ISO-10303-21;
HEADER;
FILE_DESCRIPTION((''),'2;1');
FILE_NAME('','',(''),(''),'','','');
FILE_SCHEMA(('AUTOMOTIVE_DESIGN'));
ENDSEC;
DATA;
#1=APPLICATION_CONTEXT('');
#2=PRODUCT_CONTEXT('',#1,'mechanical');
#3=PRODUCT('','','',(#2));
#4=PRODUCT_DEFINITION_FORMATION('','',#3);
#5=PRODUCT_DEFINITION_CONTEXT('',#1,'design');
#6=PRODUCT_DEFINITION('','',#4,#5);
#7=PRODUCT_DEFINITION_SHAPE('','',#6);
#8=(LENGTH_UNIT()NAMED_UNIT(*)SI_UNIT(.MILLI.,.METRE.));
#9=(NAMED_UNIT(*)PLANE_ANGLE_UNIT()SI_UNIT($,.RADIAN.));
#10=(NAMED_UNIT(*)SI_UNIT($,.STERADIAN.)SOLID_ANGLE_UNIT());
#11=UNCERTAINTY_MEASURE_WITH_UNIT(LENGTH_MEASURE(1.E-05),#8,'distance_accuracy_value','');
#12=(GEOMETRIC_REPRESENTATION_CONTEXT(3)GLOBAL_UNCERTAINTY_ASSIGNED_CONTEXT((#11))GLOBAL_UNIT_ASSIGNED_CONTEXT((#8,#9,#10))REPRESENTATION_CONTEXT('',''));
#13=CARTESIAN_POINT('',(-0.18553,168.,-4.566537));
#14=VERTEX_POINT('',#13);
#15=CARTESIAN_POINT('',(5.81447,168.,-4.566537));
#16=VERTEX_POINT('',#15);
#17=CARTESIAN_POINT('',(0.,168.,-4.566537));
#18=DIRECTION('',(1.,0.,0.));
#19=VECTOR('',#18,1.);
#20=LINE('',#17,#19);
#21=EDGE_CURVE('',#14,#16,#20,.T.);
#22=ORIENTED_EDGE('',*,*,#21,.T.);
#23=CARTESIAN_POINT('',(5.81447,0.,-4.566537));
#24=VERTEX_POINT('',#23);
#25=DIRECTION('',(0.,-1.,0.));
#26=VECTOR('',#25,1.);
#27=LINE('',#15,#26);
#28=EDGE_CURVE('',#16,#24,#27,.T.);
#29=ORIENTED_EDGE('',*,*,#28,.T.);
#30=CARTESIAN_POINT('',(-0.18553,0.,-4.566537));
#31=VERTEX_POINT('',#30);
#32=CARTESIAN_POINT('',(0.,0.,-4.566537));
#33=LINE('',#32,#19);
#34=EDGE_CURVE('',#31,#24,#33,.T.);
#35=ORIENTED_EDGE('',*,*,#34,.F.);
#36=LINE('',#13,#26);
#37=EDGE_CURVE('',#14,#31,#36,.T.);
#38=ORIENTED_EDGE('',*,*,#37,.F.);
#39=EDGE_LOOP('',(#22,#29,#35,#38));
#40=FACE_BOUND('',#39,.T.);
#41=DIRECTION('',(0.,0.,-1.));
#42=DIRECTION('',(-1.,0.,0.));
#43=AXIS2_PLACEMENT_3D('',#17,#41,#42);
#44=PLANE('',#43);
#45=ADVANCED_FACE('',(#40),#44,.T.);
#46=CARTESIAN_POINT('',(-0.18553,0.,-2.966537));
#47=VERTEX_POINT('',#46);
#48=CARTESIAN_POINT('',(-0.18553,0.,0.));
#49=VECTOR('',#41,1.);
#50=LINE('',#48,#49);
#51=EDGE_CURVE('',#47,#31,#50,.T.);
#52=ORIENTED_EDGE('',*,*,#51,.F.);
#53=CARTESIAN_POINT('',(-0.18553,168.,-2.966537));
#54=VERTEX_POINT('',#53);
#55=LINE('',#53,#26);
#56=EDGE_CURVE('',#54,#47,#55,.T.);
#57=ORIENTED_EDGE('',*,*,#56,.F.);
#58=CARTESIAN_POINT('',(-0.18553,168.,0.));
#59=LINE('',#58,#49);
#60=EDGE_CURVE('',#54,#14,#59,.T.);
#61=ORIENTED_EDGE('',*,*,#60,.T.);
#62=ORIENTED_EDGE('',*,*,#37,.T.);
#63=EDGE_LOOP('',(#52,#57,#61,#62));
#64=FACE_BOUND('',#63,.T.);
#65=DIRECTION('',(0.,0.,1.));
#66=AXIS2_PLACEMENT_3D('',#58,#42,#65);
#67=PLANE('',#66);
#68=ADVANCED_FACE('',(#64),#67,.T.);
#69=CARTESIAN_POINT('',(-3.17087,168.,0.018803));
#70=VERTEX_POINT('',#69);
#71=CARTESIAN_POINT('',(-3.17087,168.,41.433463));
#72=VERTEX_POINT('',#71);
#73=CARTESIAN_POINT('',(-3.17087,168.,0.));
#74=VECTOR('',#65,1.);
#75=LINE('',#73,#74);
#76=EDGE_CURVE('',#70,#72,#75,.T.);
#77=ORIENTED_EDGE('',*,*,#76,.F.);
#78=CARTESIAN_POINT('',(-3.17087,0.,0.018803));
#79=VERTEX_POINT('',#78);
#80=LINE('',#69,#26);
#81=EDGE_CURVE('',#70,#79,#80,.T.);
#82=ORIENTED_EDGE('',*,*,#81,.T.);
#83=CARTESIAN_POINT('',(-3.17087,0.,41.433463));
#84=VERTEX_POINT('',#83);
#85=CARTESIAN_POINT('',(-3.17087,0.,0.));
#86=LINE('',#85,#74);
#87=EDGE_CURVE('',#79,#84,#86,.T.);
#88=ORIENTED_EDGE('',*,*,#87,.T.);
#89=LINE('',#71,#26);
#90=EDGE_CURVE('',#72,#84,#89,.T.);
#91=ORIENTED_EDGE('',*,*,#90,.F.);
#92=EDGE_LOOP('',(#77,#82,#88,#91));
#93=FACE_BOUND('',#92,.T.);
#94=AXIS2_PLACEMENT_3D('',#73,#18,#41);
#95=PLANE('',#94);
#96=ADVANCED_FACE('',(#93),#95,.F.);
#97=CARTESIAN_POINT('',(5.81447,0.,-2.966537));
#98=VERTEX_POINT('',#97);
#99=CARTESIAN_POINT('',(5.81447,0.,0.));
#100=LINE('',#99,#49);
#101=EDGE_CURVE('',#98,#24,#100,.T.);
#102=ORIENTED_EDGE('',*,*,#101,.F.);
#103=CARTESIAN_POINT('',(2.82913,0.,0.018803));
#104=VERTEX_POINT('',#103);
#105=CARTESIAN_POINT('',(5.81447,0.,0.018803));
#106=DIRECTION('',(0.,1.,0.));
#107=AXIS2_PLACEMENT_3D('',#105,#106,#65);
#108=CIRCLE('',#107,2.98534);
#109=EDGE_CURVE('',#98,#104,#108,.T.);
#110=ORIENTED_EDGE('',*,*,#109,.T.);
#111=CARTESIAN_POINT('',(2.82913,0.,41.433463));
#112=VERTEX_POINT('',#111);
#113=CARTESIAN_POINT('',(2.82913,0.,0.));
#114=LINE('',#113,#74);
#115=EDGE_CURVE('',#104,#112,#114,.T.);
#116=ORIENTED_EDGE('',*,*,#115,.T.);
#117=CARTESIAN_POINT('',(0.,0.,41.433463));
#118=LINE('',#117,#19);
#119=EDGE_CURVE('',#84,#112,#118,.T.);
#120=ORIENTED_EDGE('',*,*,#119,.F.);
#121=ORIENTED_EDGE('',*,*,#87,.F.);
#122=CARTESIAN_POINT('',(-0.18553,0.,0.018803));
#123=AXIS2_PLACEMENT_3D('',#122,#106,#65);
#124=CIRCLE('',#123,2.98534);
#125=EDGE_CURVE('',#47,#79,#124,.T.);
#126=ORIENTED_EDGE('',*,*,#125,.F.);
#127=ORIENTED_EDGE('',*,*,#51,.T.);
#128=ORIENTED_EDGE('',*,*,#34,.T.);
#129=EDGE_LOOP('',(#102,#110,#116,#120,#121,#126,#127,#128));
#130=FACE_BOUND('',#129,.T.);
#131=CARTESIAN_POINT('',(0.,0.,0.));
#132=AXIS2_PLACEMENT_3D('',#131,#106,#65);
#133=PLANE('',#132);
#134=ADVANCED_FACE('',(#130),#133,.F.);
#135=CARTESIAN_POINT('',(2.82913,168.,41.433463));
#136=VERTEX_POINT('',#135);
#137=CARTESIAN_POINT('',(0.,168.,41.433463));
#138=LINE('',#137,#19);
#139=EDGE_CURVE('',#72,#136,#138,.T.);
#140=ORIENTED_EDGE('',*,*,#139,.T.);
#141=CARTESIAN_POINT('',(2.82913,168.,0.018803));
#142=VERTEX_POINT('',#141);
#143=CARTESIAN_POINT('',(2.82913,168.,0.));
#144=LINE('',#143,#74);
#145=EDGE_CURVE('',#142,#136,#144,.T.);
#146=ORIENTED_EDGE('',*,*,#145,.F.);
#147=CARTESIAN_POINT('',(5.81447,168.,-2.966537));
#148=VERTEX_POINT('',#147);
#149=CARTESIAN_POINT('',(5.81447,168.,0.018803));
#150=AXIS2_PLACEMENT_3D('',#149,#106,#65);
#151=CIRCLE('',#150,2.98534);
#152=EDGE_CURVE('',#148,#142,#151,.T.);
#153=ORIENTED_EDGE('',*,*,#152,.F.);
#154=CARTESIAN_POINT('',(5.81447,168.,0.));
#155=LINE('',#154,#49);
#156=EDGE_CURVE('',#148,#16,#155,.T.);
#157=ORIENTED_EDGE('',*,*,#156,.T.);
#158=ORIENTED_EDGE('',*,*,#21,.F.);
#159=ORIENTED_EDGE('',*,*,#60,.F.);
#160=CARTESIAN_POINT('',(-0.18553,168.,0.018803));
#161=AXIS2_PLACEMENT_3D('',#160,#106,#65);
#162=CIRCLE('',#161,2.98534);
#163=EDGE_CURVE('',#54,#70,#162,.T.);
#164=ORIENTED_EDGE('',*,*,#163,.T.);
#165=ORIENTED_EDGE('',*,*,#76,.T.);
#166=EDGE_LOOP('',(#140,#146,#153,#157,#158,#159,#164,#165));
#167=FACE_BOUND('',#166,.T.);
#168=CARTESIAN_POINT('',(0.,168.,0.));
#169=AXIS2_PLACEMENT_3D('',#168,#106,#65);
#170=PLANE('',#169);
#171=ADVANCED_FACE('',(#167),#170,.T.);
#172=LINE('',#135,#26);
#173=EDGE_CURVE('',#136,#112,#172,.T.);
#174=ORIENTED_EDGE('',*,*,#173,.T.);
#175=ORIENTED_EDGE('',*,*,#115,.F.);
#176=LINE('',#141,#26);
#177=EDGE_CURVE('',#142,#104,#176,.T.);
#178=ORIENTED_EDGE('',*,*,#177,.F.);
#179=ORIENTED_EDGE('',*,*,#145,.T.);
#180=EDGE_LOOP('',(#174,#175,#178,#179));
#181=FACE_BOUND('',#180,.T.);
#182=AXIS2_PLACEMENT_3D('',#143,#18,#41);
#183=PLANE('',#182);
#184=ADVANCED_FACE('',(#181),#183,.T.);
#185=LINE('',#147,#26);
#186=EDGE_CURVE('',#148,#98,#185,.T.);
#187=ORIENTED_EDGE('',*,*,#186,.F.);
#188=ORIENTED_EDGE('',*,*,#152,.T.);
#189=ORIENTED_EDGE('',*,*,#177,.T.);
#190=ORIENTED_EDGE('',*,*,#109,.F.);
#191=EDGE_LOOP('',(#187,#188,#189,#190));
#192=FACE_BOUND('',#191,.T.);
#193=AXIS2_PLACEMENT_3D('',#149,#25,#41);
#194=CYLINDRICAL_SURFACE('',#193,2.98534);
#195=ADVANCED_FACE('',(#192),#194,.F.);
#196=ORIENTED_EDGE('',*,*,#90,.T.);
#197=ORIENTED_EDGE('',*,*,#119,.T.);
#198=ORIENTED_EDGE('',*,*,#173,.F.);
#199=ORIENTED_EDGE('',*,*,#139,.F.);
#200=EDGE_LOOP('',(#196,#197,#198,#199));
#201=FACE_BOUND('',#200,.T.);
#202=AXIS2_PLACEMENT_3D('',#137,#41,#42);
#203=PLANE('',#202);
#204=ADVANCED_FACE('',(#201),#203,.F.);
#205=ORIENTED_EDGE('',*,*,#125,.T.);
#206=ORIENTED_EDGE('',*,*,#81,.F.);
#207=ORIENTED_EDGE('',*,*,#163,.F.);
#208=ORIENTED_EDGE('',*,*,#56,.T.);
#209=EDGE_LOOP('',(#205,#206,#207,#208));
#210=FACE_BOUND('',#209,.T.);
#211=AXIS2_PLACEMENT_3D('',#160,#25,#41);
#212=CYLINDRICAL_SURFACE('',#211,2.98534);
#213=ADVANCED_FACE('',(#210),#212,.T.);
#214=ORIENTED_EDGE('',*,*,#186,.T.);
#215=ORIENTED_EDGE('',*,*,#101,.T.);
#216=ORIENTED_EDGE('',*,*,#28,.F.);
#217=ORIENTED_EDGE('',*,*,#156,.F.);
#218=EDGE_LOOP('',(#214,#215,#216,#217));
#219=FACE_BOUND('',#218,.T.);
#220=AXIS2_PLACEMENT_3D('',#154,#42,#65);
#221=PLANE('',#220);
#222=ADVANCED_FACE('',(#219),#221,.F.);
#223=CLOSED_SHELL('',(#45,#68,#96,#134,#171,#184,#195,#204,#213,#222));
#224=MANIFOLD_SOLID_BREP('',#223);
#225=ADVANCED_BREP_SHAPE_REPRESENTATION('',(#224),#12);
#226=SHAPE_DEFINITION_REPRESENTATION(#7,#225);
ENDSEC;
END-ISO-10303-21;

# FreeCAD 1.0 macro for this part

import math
import FreeCAD as App
import Part
import Sketcher
from FreeCAD import Vector
Q = App.Units.Quantity

doc = App.newDocument("Part")
body = doc.addObject("PartDesign::Body", "Body")

sketch1 = body.newObject("Sketcher::SketchObject", "Sketch")
sketch1.AttachmentSupport = (doc.getObject("XZ_Plane"), [""])
sketch1.MapMode = "FlatFace"
sketch1.addGeometry([
    Part.LineSegment(Vector(5.81447, -4.566537, 0), Vector(-0.18553, -4.566537, 0)),
    Part.LineSegment(Vector(-0.18553, -4.566537, 0), Vector(-0.18553, -2.966537, 0)),
    Part.ArcOfCircle(Part.Circle(Vector(-0.18553, 0.018803, 0), Vector(0, 0, 1), 2.98534), math.radians(180), math.radians(270)),
    Part.LineSegment(Vector(-3.17087, 0.018803, 0), Vector(-3.17087, 41.433463, 0)),
    Part.LineSegment(Vector(-3.17087, 41.433463, 0), Vector(2.82913, 41.433463, 0)),
    Part.LineSegment(Vector(2.82913, 41.433463, 0), Vector(2.82913, 0.018803, 0)),
    Part.ArcOfCircle(Part.Circle(Vector(5.81447, 0.018803, 0), Vector(0, 0, 1), 2.98534), math.radians(180), math.radians(270)),
    Part.LineSegment(Vector(5.81447, -2.966537, 0), Vector(5.81447, -4.566537, 0)),
], False)
sketch1.addConstraint([
    Sketcher.Constraint("Coincident", 0, 2, 1, 1),
    Sketcher.Constraint("Coincident", 1, 2, 2, 2),
    Sketcher.Constraint("Tangent", 2, 1, 3, 1),
    Sketcher.Constraint("Coincident", 3, 2, 4, 1),
    Sketcher.Constraint("Coincident", 4, 2, 5, 1),
    Sketcher.Constraint("Tangent", 5, 2, 6, 1),
    Sketcher.Constraint("Coincident", 6, 2, 7, 1),
    Sketcher.Constraint("Coincident", 7, 2, 0, 1),
    Sketcher.Constraint("Horizontal", 0),
    Sketcher.Constraint("Vertical", 1),
    Sketcher.Constraint("Vertical", 3),
    Sketcher.Constraint("Horizontal", 4),
    Sketcher.Constraint("Vertical", 5),
    Sketcher.Constraint("Vertical", 7),
    Sketcher.Constraint("Equal", 2, 6),
    Sketcher.Constraint("Horizontal", 2, 3, 6, 3),
    Sketcher.Constraint("Vertical", 2, 3, 0, 2),
    Sketcher.Constraint("Equal", 0, 4),
    Sketcher.Constraint("DistanceX", 0, 2, 0, 1, Q("6 mm")),
    Sketcher.Constraint("DistanceY", 1, 1, 1, 2, Q("1.6 mm")),
    Sketcher.Constraint("DistanceY", 0, 2, 3, 2, Q("46 mm")),
    Sketcher.Constraint("Radius", 2, Q("2.98534 mm")),
    Sketcher.Constraint("DistanceX", 2, 3, -1, 1, Q("0.18553 mm")),
    Sketcher.Constraint("DistanceY", -1, 1, 2, 3, Q("0.018803 mm")),
])
pad1 = body.newObject("PartDesign::Pad", "Pad")
pad1.Profile = sketch1
pad1.Length = 168
pad1.Reversed = True

doc.recompute()
